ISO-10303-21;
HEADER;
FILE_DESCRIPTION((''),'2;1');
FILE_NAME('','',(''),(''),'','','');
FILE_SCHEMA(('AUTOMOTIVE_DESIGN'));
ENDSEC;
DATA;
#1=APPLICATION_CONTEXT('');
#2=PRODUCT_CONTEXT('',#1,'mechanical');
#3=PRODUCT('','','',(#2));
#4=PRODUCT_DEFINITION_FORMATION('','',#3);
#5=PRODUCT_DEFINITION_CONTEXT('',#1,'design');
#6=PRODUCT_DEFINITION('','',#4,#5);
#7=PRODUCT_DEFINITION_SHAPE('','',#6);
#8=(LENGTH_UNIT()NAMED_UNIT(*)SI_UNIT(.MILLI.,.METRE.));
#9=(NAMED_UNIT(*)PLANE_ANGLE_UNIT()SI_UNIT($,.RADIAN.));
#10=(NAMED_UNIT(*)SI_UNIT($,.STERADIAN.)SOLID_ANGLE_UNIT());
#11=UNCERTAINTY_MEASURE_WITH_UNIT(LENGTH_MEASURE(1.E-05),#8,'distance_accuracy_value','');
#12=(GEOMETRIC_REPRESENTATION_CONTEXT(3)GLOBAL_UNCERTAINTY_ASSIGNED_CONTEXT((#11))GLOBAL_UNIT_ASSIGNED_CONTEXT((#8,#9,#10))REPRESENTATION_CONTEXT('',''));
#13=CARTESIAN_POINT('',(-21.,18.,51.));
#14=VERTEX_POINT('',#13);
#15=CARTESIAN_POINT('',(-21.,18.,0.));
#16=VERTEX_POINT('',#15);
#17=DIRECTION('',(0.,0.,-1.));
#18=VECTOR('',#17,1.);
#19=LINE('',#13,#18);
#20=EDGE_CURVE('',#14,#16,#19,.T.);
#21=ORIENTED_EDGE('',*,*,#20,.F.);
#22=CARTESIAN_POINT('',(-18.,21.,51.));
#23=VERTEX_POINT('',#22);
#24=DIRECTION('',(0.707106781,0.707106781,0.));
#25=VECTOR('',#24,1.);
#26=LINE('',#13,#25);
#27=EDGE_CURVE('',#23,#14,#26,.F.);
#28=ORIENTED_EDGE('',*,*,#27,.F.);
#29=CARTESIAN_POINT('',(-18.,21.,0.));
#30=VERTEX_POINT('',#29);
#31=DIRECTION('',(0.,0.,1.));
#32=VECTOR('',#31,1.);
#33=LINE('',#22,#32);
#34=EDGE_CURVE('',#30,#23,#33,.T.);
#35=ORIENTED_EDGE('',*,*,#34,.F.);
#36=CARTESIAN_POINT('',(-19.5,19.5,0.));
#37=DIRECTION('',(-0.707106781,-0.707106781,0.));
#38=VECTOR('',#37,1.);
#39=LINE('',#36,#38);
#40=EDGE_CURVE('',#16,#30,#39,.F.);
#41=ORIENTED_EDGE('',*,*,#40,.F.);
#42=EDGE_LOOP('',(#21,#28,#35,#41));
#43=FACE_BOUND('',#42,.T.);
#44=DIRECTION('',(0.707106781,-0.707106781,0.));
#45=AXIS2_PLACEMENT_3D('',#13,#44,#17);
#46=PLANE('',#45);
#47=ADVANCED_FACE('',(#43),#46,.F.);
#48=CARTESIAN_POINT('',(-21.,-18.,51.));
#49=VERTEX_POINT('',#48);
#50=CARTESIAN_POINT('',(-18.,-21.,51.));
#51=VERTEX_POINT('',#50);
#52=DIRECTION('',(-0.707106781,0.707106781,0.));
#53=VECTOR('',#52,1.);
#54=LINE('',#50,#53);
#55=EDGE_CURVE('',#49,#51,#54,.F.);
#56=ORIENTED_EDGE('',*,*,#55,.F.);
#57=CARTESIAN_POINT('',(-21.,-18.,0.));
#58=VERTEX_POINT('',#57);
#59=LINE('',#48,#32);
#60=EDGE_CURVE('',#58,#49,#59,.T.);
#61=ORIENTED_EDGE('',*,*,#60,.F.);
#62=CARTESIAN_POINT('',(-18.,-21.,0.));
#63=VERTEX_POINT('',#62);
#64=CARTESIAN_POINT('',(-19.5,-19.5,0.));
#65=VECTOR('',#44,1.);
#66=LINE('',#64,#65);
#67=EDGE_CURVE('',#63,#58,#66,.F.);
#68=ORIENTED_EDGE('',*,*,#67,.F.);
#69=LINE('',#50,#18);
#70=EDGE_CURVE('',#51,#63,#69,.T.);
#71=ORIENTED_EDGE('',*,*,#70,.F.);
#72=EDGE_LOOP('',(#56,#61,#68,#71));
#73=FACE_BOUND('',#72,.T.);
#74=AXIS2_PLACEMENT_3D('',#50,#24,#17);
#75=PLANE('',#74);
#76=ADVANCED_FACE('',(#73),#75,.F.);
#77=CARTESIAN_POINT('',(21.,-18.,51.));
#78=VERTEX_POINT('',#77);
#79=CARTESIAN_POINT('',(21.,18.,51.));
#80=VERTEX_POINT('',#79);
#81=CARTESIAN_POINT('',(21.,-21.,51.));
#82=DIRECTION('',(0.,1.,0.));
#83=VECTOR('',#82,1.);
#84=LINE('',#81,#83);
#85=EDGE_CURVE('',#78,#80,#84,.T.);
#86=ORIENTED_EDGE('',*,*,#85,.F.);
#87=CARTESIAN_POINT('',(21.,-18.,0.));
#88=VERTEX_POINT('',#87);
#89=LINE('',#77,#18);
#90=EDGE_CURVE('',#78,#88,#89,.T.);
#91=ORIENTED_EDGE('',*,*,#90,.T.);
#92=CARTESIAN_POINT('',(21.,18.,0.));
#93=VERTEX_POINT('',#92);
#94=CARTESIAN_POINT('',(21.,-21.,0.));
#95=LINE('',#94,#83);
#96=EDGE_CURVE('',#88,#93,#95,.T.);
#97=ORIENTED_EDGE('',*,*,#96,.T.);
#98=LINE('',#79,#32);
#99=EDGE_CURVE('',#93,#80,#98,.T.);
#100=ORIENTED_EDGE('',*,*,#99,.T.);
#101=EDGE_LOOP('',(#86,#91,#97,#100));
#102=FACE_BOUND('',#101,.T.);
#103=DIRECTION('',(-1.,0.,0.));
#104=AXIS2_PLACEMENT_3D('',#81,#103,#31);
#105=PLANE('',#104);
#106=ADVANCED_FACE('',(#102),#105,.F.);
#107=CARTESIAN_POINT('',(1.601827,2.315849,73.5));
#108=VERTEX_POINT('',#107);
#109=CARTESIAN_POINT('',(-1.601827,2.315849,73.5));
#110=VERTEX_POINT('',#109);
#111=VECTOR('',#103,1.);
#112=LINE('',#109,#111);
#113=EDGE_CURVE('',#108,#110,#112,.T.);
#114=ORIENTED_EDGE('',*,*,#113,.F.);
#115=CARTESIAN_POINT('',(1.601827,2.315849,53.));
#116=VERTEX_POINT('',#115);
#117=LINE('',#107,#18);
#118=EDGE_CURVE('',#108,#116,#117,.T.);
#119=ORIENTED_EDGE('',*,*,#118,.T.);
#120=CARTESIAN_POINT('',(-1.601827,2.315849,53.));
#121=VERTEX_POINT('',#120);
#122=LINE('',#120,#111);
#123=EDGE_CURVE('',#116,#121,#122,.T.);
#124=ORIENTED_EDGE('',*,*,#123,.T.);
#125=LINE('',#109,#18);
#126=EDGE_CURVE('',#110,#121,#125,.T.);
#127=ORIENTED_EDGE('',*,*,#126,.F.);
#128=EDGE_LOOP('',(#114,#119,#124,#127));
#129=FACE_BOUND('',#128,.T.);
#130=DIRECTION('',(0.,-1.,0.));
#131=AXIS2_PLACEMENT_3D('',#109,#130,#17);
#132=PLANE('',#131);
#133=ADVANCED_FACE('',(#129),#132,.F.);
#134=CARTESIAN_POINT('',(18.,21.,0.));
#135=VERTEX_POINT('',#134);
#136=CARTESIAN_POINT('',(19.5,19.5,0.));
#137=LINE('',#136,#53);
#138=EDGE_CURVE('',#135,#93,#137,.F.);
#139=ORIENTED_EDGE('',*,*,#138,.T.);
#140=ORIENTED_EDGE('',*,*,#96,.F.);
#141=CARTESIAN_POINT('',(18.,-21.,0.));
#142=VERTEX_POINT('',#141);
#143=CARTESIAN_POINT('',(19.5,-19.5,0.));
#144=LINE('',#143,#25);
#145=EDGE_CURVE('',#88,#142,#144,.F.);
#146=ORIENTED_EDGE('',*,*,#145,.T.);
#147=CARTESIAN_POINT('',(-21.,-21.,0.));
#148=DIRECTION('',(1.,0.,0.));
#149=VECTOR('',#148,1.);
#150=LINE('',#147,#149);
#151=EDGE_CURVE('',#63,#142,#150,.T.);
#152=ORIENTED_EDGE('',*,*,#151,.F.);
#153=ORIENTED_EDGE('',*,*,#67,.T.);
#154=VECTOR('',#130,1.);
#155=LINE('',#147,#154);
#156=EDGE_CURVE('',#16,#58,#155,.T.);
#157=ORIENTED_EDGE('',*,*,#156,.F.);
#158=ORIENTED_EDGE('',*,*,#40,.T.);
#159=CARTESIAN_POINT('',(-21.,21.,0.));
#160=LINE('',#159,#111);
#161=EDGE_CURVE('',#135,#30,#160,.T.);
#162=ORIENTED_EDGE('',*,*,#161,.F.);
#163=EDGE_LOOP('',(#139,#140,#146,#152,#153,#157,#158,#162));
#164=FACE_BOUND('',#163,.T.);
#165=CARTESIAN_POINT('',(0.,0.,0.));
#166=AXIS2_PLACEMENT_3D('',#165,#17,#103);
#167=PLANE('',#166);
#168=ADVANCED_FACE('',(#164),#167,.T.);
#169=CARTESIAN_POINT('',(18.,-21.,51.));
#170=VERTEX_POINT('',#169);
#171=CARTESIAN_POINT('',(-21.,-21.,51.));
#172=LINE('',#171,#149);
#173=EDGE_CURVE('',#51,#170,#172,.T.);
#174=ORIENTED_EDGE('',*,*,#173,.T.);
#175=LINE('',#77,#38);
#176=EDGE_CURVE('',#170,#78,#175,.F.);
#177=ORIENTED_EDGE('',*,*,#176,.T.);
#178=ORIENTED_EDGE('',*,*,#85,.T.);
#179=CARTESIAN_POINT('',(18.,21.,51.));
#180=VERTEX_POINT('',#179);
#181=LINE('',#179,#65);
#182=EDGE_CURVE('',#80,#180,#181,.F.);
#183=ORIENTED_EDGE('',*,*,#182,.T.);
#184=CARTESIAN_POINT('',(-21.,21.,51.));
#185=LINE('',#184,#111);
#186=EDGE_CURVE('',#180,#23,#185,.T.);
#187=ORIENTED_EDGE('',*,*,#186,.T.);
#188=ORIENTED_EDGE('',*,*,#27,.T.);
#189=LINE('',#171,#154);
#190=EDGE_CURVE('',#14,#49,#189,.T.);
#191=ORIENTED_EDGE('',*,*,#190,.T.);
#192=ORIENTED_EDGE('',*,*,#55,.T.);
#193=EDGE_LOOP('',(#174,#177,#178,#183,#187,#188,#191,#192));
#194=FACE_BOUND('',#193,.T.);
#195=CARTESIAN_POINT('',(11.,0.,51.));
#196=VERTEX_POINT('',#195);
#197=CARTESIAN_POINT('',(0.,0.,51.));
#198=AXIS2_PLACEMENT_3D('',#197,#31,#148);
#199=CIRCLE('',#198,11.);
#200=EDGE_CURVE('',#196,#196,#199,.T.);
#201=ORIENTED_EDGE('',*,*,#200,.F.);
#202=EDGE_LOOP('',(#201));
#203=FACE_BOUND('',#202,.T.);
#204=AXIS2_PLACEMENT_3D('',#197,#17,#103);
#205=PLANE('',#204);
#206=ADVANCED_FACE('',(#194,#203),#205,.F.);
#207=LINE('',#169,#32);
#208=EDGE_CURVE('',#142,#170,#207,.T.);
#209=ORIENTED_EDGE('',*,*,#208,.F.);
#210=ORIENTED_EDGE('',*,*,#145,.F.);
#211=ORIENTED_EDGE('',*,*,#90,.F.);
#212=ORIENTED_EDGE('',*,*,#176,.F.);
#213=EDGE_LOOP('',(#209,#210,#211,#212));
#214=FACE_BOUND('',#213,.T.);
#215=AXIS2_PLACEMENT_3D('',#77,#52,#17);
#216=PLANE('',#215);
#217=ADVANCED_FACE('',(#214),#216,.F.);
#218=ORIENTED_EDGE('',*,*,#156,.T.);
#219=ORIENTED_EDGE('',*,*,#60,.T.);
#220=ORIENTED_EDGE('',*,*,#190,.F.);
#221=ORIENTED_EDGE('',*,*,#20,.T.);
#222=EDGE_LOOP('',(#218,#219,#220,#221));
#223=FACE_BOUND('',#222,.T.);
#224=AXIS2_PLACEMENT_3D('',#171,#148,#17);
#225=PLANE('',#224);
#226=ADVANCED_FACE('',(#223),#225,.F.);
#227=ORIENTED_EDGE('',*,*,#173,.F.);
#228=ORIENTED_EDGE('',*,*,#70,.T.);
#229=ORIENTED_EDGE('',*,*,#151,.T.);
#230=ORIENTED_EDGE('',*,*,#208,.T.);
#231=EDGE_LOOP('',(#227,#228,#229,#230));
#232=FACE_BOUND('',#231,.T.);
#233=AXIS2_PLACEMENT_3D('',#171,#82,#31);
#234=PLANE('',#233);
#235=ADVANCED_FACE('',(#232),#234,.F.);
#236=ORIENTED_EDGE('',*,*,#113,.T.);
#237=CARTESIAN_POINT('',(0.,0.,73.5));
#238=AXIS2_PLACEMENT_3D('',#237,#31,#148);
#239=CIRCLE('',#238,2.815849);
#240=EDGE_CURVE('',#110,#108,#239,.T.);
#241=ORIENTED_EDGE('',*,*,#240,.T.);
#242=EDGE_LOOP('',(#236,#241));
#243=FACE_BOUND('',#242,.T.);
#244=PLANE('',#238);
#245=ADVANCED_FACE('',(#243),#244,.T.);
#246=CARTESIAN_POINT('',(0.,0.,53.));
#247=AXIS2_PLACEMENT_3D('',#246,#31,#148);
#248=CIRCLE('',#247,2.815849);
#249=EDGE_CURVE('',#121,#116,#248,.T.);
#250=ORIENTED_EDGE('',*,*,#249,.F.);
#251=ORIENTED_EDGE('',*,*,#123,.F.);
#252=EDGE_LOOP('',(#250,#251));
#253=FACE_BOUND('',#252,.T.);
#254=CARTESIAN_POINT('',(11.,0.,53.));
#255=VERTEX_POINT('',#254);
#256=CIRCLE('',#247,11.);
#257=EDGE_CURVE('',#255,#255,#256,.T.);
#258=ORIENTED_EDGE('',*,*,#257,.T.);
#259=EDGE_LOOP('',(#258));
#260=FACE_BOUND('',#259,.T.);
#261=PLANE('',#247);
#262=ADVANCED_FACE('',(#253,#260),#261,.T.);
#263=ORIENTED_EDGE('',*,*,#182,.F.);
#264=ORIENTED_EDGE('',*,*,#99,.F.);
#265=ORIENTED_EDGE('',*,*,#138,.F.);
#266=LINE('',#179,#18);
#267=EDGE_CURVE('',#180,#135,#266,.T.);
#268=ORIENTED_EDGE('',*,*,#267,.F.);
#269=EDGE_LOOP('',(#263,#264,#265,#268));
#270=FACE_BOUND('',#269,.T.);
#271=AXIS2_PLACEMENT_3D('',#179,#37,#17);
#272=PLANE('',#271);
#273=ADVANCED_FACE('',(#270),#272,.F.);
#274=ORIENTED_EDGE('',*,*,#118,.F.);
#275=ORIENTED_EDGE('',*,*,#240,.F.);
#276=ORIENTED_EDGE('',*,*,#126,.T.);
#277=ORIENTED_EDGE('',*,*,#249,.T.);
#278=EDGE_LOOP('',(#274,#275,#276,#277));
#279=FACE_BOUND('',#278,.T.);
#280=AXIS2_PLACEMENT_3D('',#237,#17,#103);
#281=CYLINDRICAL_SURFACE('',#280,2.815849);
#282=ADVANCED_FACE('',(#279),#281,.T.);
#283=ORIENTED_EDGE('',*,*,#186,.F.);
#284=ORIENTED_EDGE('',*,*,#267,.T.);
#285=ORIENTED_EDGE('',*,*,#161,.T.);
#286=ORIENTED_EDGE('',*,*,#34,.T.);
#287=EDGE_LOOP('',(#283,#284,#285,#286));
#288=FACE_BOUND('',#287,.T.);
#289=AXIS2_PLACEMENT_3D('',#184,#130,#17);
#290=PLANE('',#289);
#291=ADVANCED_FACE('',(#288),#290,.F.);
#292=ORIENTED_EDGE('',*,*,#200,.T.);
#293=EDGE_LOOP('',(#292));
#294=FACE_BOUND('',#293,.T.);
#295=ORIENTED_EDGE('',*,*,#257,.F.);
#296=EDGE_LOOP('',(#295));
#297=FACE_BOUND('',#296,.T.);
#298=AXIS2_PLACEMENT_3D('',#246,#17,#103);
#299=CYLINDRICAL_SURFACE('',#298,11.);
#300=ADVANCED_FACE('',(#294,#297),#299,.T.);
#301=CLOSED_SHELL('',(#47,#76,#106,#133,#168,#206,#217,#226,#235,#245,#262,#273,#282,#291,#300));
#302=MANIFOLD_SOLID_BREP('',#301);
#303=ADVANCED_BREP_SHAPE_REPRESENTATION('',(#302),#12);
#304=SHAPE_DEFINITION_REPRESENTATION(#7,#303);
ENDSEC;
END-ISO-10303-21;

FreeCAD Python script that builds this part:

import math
import FreeCAD as App
import Part
import Sketcher
Q = App.Units.Quantity


def edges_at(feature, points):
    """Names of the edges that pass closest to the given points."""
    edges = feature.Shape.Edges
    near = lambda p: min(range(len(edges)), key=lambda i: edges[i].distToShape(Part.Vertex(*p))[0])
    return sorted({f"Edge{near(p) + 1}" for p in points})


def add_polygon(sketch, points):
    """Adds a closed chain of lines whose ends are joined by coincident constraints."""
    first, n = sketch.GeometryCount, len(points)
    for a, b in zip(points, points[1:] + points[:1]):
        sketch.addGeometry(Part.LineSegment(App.Vector(*a, 0), App.Vector(*b, 0)), False)
    for i in range(n):
        sketch.addConstraint(Sketcher.Constraint("Coincident", first + i, 2, first + (i + 1) % n, 1))

doc = App.newDocument("Part")
body = doc.addObject("PartDesign::Body", "Body")

# Sketch on XY plane
sketch1 = doc.addObject("Sketcher::SketchObject", "Sketch")
body.addObject(sketch1)
sketch1.AttachmentSupport = (doc.XY_Plane, [""])
sketch1.MapMode = "FlatFace"
add_polygon(sketch1, [(-21, 21), (-21, -21), (21, -21), (21, 21)])  # lines 0-3
sketch1.addConstraint([
    Sketcher.Constraint("Vertical", 0),
    Sketcher.Constraint("Horizontal", 1),
    Sketcher.Constraint("Vertical", 2),
    Sketcher.Constraint("Horizontal", 3),
    Sketcher.Constraint("Symmetric", 0, 2, 2, 2, -1, 1),
    Sketcher.Constraint("Equal", 3, 0),
    Sketcher.Constraint("DistanceX", 1, 1, 1, 2, Q("42 mm")),
])
pad1 = doc.addObject("PartDesign::Pad", "Pad")
body.addObject(pad1)
pad1.Profile = sketch1
pad1.Length = 51

# Sketch on XY plane
sketch2 = doc.addObject("Sketcher::SketchObject", "Sketch001")
body.addObject(sketch2)
sketch2.AttachmentSupport = (doc.XY_Plane, [""])
sketch2.MapMode = "FlatFace"
sketch2.AttachmentOffset = App.Placement(App.Vector(0, 0, 51), App.Rotation())
sketch2.addGeometry(Part.Circle(App.Vector(0, 0, 0), App.Vector(0, 0, 1), 11), False)
sketch2.addConstraint([
    Sketcher.Constraint("Coincident", 0, 3, -1, 1),
    Sketcher.Constraint("Diameter", 0, Q("22 mm")),
])
pad2 = doc.addObject("PartDesign::Pad", "Pad001")
body.addObject(pad2)
pad2.Profile = sketch2
pad2.Length = 2

# Sketch on XY plane
sketch3 = doc.addObject("Sketcher::SketchObject", "Sketch002")
body.addObject(sketch3)
sketch3.AttachmentSupport = (doc.XY_Plane, [""])
sketch3.MapMode = "FlatFace"
sketch3.AttachmentOffset = App.Placement(App.Vector(0, 0, 53), App.Rotation())
sketch3.addGeometry([
    Part.LineSegment(App.Vector(1.6, 2.3, 0), App.Vector(-1.6, 2.3, 0)),
    Part.ArcOfCircle(Part.Circle(App.Vector(0, 0, 0), App.Vector(0, 0, 1), 2.8), math.radians(125), math.radians(415)),
], False)
sketch3.addConstraint([
    Sketcher.Constraint("Coincident", 0, 1, 1, 2),
    Sketcher.Constraint("Coincident", 1, 1, 0, 2),
    Sketcher.Constraint("Horizontal", 0),
    Sketcher.Constraint("Coincident", 1, 3, -1, 1),
    Sketcher.Constraint("Radius", 1, Q("2.815849 mm")),
    Sketcher.Constraint("DistanceX", 0, 2, 0, 1, Q("3.203653 mm")),
])
pad3 = doc.addObject("PartDesign::Pad", "Pad002")
body.addObject(pad3)
pad3.Profile = sketch3
pad3.Length = 20.5
doc.recompute()

chamfer = doc.addObject("PartDesign::Chamfer", "Chamfer")
body.addObject(chamfer)
chamfer.Base = (pad3, edges_at(pad3, [
    (21, -21, 25.5),
    (-21, -21, 25.5),
    (-21, 21, 25.5),
    (21, 21, 25.5),
]))
chamfer.Size = 3

doc.recompute()
